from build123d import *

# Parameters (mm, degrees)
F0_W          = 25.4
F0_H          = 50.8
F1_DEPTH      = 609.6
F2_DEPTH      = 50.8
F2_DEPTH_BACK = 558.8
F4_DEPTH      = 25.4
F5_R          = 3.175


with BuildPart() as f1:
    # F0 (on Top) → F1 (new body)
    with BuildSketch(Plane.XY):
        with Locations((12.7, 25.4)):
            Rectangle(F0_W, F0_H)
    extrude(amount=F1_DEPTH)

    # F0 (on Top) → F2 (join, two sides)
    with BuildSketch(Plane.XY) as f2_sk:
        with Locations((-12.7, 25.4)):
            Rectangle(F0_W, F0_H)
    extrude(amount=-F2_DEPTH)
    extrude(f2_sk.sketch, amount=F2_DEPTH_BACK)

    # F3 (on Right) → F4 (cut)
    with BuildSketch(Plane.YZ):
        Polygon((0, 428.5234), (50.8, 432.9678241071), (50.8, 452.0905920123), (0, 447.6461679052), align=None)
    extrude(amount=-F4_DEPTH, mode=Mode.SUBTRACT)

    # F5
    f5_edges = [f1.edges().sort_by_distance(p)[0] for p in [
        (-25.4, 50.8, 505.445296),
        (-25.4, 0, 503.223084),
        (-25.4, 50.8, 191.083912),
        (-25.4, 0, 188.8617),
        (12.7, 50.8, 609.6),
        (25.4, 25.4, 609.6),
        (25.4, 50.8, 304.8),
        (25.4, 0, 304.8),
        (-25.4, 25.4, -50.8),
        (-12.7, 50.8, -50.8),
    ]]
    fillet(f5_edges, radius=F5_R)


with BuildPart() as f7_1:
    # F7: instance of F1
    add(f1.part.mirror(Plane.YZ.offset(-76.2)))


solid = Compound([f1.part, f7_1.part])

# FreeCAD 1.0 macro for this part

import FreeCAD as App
import Part
import Sketcher
from FreeCAD import Vector
Q = App.Units.Quantity


def edges_at(feature, points):
    """Names of the edges that pass closest to the given points."""
    edges = feature.Shape.Edges
    near = lambda p: min(range(len(edges)), key=lambda i: edges[i].distToShape(Part.Vertex(*p))[0])
    return sorted({f"Edge{near(p) + 1}" for p in points})


def add_polygon(sketch, points):
    """Adds a closed chain of lines whose ends are joined by coincident constraints."""
    first, n = sketch.GeometryCount, len(points)
    for a, b in zip(points, points[1:] + points[:1]):
        sketch.addGeometry(Part.LineSegment(App.Vector(*a, 0), App.Vector(*b, 0)), False)
    for i in range(n):
        sketch.addConstraint(Sketcher.Constraint("Coincident", first + i, 2, first + (i + 1) % n, 1))

doc = App.newDocument("Part")
params = doc.addObject("Spreadsheet::Sheet", "Params")
for row, (alias, value) in enumerate([
    ("sketch1_width", "1 in"),
    ("sketch1_height", "2 in"),
    ("pad1_length", "24 in"),
    ("sketch2_width", "1 in"),
    ("sketch2_height", "2 in"),
    ("pad2_length", "2 in"),
    ("pad2_length2", "22 in"),
    ("pocket1_length", "1 in"),
    ("fillet_radius", "0.125 in"),
], start=1):
    params.set(f"A{row}", alias)
    params.set(f"B{row}", "=" + value)
    params.setAlias(f"B{row}", alias)

body = doc.addObject("PartDesign::Body", "Body")

# Sketch on XY plane
sketch1 = body.newObject("Sketcher::SketchObject", "Sketch")
sketch1.AttachmentSupport = (doc.getObject("XY_Plane"), [""])
sketch1.MapMode = "FlatFace"
add_polygon(sketch1, [(0, 51), (0, 0), (25, 0), (25, 51)])  # lines 0-3
sketch1.addConstraint([
    Sketcher.Constraint("Vertical", 0),
    Sketcher.Constraint("Horizontal", 1),
    Sketcher.Constraint("Vertical", 2),
    Sketcher.Constraint("Horizontal", 3),
    Sketcher.Constraint("Coincident", 0, 2, -1, 1),
    Sketcher.Constraint("DistanceX", 1, 1, 1, 2, Q("1 in")),
    Sketcher.Constraint("DistanceY", 0, 2, 0, 1, Q("2 in")),
])
sketch1.setExpression("Constraints[9]", "Params.sketch1_width")
sketch1.setExpression("Constraints[10]", "Params.sketch1_height")
pad1 = body.newObject("PartDesign::Pad", "Pad")
pad1.Profile = sketch1
pad1.setExpression("Length", "Params.pad1_length")

# Sketch on XY plane
sketch2 = body.newObject("Sketcher::SketchObject", "Sketch001")
sketch2.AttachmentSupport = (doc.getObject("XY_Plane"), [""])
sketch2.MapMode = "FlatFace"
add_polygon(sketch2, [(-25, 51), (-25, 0), (0, 0), (0, 51)])  # lines 0-3
sketch2.addConstraint([
    Sketcher.Constraint("Vertical", 0),
    Sketcher.Constraint("Horizontal", 1),
    Sketcher.Constraint("Vertical", 2),
    Sketcher.Constraint("Horizontal", 3),
    Sketcher.Constraint("Coincident", 1, 2, -1, 1),
    Sketcher.Constraint("DistanceX", 1, 1, 1, 2, Q("1 in")),
    Sketcher.Constraint("DistanceY", 0, 2, 0, 1, Q("2 in")),
])
sketch2.setExpression("Constraints[9]", "Params.sketch2_width")
sketch2.setExpression("Constraints[10]", "Params.sketch2_height")
pad2 = body.newObject("PartDesign::Pad", "Pad001")
pad2.Profile = sketch2
pad2.Type = "TwoLengths"
pad2.setExpression("Length", "Params.pad2_length")
pad2.setExpression("Length2", "Params.pad2_length2")
pad2.Reversed = True

# Sketch on YZ plane
sketch3 = body.newObject("Sketcher::SketchObject", "Sketch002")
sketch3.AttachmentSupport = (doc.getObject("YZ_Plane"), [""])
sketch3.MapMode = "FlatFace"
add_polygon(sketch3, [(0, 429), (51, 433), (51, 452), (0, 448)])  # lines 0-3
sketch3.addConstraint([
    Sketcher.Constraint("Vertical", 1),
    Sketcher.Constraint("Vertical", 3),
    Sketcher.Constraint("PointOnObject", 2, 2, -2),
    Sketcher.Constraint("Parallel", 0, 2),
    Sketcher.Constraint("DistanceX", -1, 1, 0, 2, Q("2 in")),
    Sketcher.Constraint("Angle", 0, Q("5 deg")),
    Sketcher.Constraint("DistanceY", -1, 1, 3, 2, Q("16.871 in")),
    Sketcher.Constraint("DistanceY", 1, 1, 1, 2, Q("19.122768 mm")),
])
pocket1 = body.newObject("PartDesign::Pocket", "Pocket")
pocket1.Profile = sketch3
pocket1.setExpression("Length", "Params.pocket1_length")
doc.recompute()

fillet = body.newObject("PartDesign::Fillet", "Fillet")
fillet.Base = (pocket1, edges_at(pocket1, [
    (-25.4, 50.8, 505.445),
    (-25.4, 0, 503.223),
    (-25.4, 50.8, 191.084),
    (-25.4, 0, 188.862),
    (12.7, 50.8, 609.6),
    (25.4, 25.4, 609.6),
    (25.4, 50.8, 304.8),
    (25.4, 0, 304.8),
    (-25.4, 25.4, -50.8),
    (-12.7, 50.8, -50.8),
]))
fillet.setExpression("Radius", "Params.fillet_radius")
body2 = doc.addObject("PartDesign::Body", "Body001")
doc.recompute()

mirroring = doc.addObject("Part::Mirroring", "Mirroring")
mirroring.Source = body
mirroring.Base = Vector(-76.2, 0, 0)
mirroring.Normal = Vector(1, 0, 0)
body2.BaseFeature = mirroring
doc.recompute()
mirroring.Visibility = False

doc.recompute()
